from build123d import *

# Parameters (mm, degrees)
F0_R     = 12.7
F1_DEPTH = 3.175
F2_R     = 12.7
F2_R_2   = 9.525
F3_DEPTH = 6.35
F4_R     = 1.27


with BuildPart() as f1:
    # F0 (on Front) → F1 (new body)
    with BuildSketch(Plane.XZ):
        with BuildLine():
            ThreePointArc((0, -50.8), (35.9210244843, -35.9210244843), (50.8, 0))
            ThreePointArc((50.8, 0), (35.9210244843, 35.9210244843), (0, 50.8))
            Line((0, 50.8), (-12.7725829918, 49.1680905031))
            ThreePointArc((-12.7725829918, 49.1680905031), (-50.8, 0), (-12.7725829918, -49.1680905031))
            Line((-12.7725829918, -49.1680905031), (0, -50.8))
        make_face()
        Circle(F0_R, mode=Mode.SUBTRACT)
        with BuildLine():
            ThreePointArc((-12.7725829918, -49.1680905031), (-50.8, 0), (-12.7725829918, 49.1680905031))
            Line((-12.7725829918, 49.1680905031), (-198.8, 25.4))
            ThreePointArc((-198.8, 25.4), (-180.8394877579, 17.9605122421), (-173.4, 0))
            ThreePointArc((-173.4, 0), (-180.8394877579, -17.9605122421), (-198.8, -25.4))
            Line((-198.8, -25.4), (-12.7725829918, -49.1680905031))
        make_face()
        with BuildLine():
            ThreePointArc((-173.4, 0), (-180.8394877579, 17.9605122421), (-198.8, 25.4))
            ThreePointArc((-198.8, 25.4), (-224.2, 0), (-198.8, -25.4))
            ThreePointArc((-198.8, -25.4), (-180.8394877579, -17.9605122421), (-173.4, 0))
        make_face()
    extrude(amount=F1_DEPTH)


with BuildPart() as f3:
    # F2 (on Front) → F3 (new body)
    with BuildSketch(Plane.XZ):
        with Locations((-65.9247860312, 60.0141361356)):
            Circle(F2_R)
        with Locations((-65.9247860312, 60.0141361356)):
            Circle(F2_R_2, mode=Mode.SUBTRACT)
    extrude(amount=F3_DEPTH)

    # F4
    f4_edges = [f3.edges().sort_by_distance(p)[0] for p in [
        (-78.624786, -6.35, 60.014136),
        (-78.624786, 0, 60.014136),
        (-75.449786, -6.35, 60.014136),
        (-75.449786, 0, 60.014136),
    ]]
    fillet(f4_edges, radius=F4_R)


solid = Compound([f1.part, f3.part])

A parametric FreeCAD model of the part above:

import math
import FreeCAD as App
import Part
import Sketcher
from FreeCAD import Vector
Q = App.Units.Quantity


def edges_at(feature, points):
    """Names of the edges that pass closest to the given points."""
    edges = feature.Shape.Edges
    near = lambda p: min(range(len(edges)), key=lambda i: edges[i].distToShape(Part.Vertex(*p))[0])
    return sorted({f"Edge{near(p) + 1}" for p in points})

doc = App.newDocument("Part")
body = doc.addObject("PartDesign::Body", "Body")

# Sketch on XZ plane
sketch1 = body.newObject("Sketcher::SketchObject", "Sketch")
sketch1.AttachmentSupport = (doc.getObject("XZ_Plane"), [""])
sketch1.MapMode = "FlatFace"
sketch1.addGeometry(Part.ArcOfCircle(Part.Circle(Vector(0, 0, 0), Vector(0, 0, 1), 51), math.radians(-90), math.radians(0)), False)
sketch1.addGeometry(Part.ArcOfCircle(Part.Circle(Vector(0, 0, 0), Vector(0, 0, 1), 51), math.radians(0), math.radians(90)), False)
sketch1.addGeometry(Part.LineSegment(Vector(0, 51, 0), Vector(-13, 49, 0)), False)
sketch1.addGeometry(Part.LineSegment(Vector(-13, 49, 0), Vector(-199, 25, 0)), False)
sketch1.addGeometry(Part.ArcOfCircle(Part.Circle(Vector(-199, 0, 0), Vector(0, 0, 1), 25), math.radians(90), math.radians(270)), False)
sketch1.addGeometry(Part.LineSegment(Vector(-199, -25, 0), Vector(-13, -49, 0)), False)
sketch1.addGeometry(Part.LineSegment(Vector(-13, -49, 0), Vector(0, -51, 0)), False)
sketch1.addGeometry(Part.Circle(Vector(0, 0, 0), Vector(0, 0, 1), 13), False)
sketch1.addConstraint(Sketcher.Constraint("Tangent", 0, 2, 1, 1))
sketch1.addConstraint(Sketcher.Constraint("Coincident", 1, 2, 2, 1))
sketch1.addConstraint(Sketcher.Constraint("Coincident", 2, 2, 3, 1))
sketch1.addConstraint(Sketcher.Constraint("Coincident", 3, 2, 4, 1))
sketch1.addConstraint(Sketcher.Constraint("Coincident", 4, 2, 5, 1))
sketch1.addConstraint(Sketcher.Constraint("Coincident", 5, 2, 6, 1))
sketch1.addConstraint(Sketcher.Constraint("Coincident", 6, 2, 0, 1))
sketch1.addConstraint(Sketcher.Constraint("Coincident", 0, 3, -1, 1))
sketch1.addConstraint(Sketcher.Constraint("Coincident", 7, 3, -1, 1))
sketch1.addConstraint(Sketcher.Constraint("Equal", 0, 1))
sketch1.addConstraint(Sketcher.Constraint("Symmetric", 3, 2, 4, 2, -1))
sketch1.addConstraint(Sketcher.Constraint("Symmetric", 2, 2, 5, 2, -1))
sketch1.addConstraint(Sketcher.Constraint("PointOnObject", 0, 2, -1))
sketch1.addConstraint(Sketcher.Constraint("PointOnObject", 1, 2, -2))
sketch1.addConstraint(Sketcher.Constraint("PointOnObject", 6, 2, -2))
sketch1.addConstraint(Sketcher.Constraint("Parallel", 2, 3))
sketch1.addConstraint(Sketcher.Constraint("Vertical", 4, 3, 3, 2))
sketch1.addConstraint(Sketcher.Constraint("Diameter", 7, Q("1 in")))
sketch1.addConstraint(Sketcher.Constraint("Radius", 0, Q("2 in")))
sketch1.addConstraint(Sketcher.Constraint("Radius", 4, Q("1 in")))
sketch1.addConstraint(Sketcher.Constraint("DistanceX", 4, 3, -1, 1, Q("198.8 mm")))
sketch1.addConstraint(Sketcher.Constraint("DistanceY", -1, 1, 2, 2, Q("49.168091 mm")))
pad1 = body.newObject("PartDesign::Pad", "Pad")
pad1.Profile = sketch1
pad1.Length = Q("0.125 in")
body2 = doc.addObject("PartDesign::Body", "Body001")

# Sketch on XZ plane
sketch2 = body2.newObject("Sketcher::SketchObject", "Sketch001")
sketch2.AttachmentSupport = (doc.getObject("XZ_Plane001"), [""])
sketch2.MapMode = "FlatFace"
sketch2.addGeometry(Part.Circle(Vector(-66, 60, 0), Vector(0, 0, 1), 13), False)
sketch2.addGeometry(Part.Circle(Vector(-66, 60, 0), Vector(0, 0, 1), 10), False)
sketch2.addConstraint(Sketcher.Constraint("Coincident", 1, 3, 0, 3))
sketch2.addConstraint(Sketcher.Constraint("Diameter", 0, Q("1 in")))
sketch2.addConstraint(Sketcher.Constraint("Diameter", 1, Q("0.75 in")))
sketch2.addConstraint(Sketcher.Constraint("DistanceX", 0, 3, -1, 1, Q("65.924786 mm")))
sketch2.addConstraint(Sketcher.Constraint("DistanceY", -1, 1, 0, 3, Q("60.014136 mm")))
pad2 = body2.newObject("PartDesign::Pad", "Pad001")
pad2.Profile = sketch2
pad2.Length = Q("0.25 in")
doc.recompute()

fillet = body2.newObject("PartDesign::Fillet", "Fillet")
fillet.Base = (pad2, edges_at(pad2, [
    (-78.625, -6.35, 60.014),
    (-78.625, 0, 60.014),
    (-75.45, -6.35, 60.014),
    (-75.45, 0, 60.014),
]))
fillet.Radius = Q("0.05 in")

doc.recompute()
